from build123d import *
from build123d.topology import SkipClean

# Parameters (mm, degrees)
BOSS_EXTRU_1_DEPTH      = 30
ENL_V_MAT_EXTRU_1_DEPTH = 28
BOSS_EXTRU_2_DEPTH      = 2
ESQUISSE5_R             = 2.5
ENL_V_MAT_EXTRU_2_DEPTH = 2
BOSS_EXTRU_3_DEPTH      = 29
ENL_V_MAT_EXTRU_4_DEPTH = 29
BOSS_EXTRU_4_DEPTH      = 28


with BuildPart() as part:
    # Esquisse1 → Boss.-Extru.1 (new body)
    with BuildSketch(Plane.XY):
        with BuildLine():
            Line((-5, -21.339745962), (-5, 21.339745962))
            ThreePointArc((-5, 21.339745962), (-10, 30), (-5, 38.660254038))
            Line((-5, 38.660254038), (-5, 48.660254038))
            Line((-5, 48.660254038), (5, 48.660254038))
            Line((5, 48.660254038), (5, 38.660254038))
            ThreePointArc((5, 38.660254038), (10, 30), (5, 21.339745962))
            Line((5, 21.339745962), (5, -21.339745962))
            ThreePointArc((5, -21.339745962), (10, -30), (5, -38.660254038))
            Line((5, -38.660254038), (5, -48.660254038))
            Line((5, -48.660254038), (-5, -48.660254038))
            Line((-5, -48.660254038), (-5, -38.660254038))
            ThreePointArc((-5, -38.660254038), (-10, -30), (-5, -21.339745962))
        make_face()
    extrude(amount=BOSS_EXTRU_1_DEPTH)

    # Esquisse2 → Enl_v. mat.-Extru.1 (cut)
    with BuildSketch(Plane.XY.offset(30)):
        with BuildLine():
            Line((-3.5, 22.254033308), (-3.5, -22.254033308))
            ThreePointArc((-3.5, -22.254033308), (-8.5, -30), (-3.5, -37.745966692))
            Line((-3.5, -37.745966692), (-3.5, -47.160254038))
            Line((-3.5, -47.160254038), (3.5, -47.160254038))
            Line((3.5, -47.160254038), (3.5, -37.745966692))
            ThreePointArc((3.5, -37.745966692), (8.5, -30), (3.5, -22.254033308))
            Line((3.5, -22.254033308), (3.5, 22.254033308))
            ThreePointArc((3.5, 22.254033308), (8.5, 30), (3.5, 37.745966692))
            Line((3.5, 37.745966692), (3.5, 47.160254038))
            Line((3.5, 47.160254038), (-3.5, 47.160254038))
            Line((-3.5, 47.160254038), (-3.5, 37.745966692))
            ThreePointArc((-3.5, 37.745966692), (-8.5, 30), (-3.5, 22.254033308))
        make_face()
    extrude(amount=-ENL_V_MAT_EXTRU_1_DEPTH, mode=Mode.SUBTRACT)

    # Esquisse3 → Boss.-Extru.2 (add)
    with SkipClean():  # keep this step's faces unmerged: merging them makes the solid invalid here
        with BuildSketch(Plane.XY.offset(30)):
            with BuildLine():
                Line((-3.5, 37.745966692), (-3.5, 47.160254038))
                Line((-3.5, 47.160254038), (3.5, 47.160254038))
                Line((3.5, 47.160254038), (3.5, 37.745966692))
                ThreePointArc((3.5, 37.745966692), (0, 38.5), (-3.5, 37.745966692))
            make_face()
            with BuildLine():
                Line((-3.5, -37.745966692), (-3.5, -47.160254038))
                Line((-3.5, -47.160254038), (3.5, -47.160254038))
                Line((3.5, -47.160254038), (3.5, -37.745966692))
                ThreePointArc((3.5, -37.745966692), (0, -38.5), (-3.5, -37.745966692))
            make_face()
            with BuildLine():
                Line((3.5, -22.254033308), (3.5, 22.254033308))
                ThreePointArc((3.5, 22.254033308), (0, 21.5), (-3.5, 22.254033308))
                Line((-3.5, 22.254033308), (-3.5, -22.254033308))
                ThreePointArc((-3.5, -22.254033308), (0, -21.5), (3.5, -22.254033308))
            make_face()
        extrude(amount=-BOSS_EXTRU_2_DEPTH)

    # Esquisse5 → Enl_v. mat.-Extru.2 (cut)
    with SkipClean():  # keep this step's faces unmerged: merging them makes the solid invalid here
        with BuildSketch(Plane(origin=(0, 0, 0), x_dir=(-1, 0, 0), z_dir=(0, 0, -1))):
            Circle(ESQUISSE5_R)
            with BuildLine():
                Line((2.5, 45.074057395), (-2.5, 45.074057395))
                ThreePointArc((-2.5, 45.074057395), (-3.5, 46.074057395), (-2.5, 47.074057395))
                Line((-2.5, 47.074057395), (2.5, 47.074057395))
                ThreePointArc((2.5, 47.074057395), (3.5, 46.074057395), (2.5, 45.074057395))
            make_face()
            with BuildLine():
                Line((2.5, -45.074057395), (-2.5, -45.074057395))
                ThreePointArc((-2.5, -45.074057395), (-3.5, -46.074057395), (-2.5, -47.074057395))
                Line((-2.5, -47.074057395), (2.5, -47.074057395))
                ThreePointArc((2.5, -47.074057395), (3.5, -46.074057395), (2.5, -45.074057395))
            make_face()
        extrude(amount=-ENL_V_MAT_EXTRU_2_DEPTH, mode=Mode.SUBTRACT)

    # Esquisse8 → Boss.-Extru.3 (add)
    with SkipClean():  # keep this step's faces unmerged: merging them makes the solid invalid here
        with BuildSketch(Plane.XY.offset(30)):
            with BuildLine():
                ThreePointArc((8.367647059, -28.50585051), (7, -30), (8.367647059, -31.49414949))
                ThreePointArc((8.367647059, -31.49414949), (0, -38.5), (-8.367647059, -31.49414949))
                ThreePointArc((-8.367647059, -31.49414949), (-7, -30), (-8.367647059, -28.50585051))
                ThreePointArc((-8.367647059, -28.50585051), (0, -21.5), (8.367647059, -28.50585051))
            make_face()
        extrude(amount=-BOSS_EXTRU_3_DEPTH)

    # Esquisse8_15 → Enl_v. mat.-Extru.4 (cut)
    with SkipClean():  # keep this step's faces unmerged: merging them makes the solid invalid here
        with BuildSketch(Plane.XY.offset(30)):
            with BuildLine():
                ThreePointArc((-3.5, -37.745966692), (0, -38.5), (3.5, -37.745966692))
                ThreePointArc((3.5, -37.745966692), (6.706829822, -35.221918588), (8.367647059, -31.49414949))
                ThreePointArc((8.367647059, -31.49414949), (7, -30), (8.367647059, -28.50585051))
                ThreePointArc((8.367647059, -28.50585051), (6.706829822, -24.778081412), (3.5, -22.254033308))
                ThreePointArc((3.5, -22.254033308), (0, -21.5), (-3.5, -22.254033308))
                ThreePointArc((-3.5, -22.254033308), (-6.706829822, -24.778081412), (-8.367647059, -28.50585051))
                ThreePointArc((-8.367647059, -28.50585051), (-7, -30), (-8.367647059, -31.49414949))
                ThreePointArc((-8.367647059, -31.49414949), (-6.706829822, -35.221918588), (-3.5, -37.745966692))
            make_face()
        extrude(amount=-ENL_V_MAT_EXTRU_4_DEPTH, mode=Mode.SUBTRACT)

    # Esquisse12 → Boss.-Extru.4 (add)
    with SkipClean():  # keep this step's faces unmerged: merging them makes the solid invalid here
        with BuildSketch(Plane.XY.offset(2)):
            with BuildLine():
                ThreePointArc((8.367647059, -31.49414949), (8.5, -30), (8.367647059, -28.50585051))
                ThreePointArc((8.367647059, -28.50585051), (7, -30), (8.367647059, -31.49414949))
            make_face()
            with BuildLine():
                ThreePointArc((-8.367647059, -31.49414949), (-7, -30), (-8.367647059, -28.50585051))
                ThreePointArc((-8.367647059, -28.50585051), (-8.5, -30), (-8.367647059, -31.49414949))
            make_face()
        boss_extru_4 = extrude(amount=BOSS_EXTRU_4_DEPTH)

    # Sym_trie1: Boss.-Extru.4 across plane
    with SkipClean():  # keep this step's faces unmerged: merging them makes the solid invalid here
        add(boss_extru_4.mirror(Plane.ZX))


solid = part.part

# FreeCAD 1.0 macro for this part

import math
import FreeCAD as App
import Part
import Sketcher
Q = App.Units.Quantity

doc = App.newDocument("Part")
body = doc.addObject("PartDesign::Body", "Body")

sketch1 = body.newObject("Sketcher::SketchObject", "Sketch")
sketch1.AttachmentSupport = (doc.getObject("XY_Plane"), [""])
sketch1.MapMode = "FlatFace"
sketch1.addGeometry(Part.LineSegment(App.Vector(-5, 21, 0), App.Vector(-5, -21, 0)), False)
sketch1.addGeometry(Part.ArcOfCircle(Part.Circle(App.Vector(0, -30, 0), App.Vector(0, 0, 1), 10), math.radians(120), math.radians(240)), False)
sketch1.addGeometry(Part.LineSegment(App.Vector(-5, -39, 0), App.Vector(-5, -49, 0)), False)
sketch1.addGeometry(Part.LineSegment(App.Vector(-5, -49, 0), App.Vector(5, -49, 0)), False)
sketch1.addGeometry(Part.LineSegment(App.Vector(5, -49, 0), App.Vector(5, -39, 0)), False)
sketch1.addGeometry(Part.ArcOfCircle(Part.Circle(App.Vector(0, -30, 0), App.Vector(0, 0, 1), 10), math.radians(-60), math.radians(60)), False)
sketch1.addGeometry(Part.LineSegment(App.Vector(5, -21, 0), App.Vector(5, 21, 0)), False)
sketch1.addGeometry(Part.ArcOfCircle(Part.Circle(App.Vector(0, 30, 0), App.Vector(0, 0, 1), 10), math.radians(-60), math.radians(60)), False)
sketch1.addGeometry(Part.LineSegment(App.Vector(5, 39, 0), App.Vector(5, 49, 0)), False)
sketch1.addGeometry(Part.LineSegment(App.Vector(5, 49, 0), App.Vector(-5, 49, 0)), False)
sketch1.addGeometry(Part.LineSegment(App.Vector(-5, 49, 0), App.Vector(-5, 39, 0)), False)
sketch1.addGeometry(Part.ArcOfCircle(Part.Circle(App.Vector(0, 30, 0), App.Vector(0, 0, 1), 10), math.radians(120), math.radians(240)), False)
sketch1.addConstraint(Sketcher.Constraint("Coincident", 0, 2, 1, 1))
sketch1.addConstraint(Sketcher.Constraint("Coincident", 1, 2, 2, 1))
sketch1.addConstraint(Sketcher.Constraint("Coincident", 2, 2, 3, 1))
sketch1.addConstraint(Sketcher.Constraint("Coincident", 3, 2, 4, 1))
sketch1.addConstraint(Sketcher.Constraint("Coincident", 4, 2, 5, 1))
sketch1.addConstraint(Sketcher.Constraint("Coincident", 5, 2, 6, 1))
sketch1.addConstraint(Sketcher.Constraint("Coincident", 6, 2, 7, 1))
sketch1.addConstraint(Sketcher.Constraint("Coincident", 7, 2, 8, 1))
sketch1.addConstraint(Sketcher.Constraint("Coincident", 8, 2, 9, 1))
sketch1.addConstraint(Sketcher.Constraint("Coincident", 9, 2, 10, 1))
sketch1.addConstraint(Sketcher.Constraint("Coincident", 10, 2, 11, 1))
sketch1.addConstraint(Sketcher.Constraint("Coincident", 11, 2, 0, 1))
sketch1.addConstraint(Sketcher.Constraint("Vertical", 0))
sketch1.addConstraint(Sketcher.Constraint("Vertical", 2))
sketch1.addConstraint(Sketcher.Constraint("Horizontal", 3))
sketch1.addConstraint(Sketcher.Constraint("Vertical", 4))
sketch1.addConstraint(Sketcher.Constraint("Vertical", 6))
sketch1.addConstraint(Sketcher.Constraint("Vertical", 8))
sketch1.addConstraint(Sketcher.Constraint("Horizontal", 9))
sketch1.addConstraint(Sketcher.Constraint("Vertical", 10))
sketch1.addConstraint(Sketcher.Constraint("Coincident", 5, 3, 1, 3))
sketch1.addConstraint(Sketcher.Constraint("Coincident", 11, 3, 7, 3))
sketch1.addConstraint(Sketcher.Constraint("Equal", 1, 5))
sketch1.addConstraint(Sketcher.Constraint("Equal", 5, 7))
sketch1.addConstraint(Sketcher.Constraint("Equal", 7, 11))
sketch1.addConstraint(Sketcher.Constraint("Symmetric", 1, 3, 7, 3, -1, 1))
sketch1.addConstraint(Sketcher.Constraint("Symmetric", 2, 2, 8, 2, -1, 1))
sketch1.addConstraint(Sketcher.Constraint("Symmetric", 1, 2, 4, 2, -2))
sketch1.addConstraint(Sketcher.Constraint("Horizontal", 0, 2, 5, 2))
sketch1.addConstraint(Sketcher.Constraint("Horizontal", 7, 2, 10, 2))
sketch1.addConstraint(Sketcher.Constraint("Vertical", 0, 2, 1, 2))
sketch1.addConstraint(Sketcher.Constraint("Equal", 9, 2))
sketch1.addConstraint(Sketcher.Constraint("Radius", 1, Q("10 mm")))
sketch1.addConstraint(Sketcher.Constraint("DistanceX", 3, 1, 3, 2, Q("10 mm")))
sketch1.addConstraint(Sketcher.Constraint("DistanceY", 1, 3, -1, 1, Q("30 mm")))
pad1 = body.newObject("PartDesign::Pad", "Pad")
pad1.Profile = sketch1
pad1.Length = 30

sketch2 = body.newObject("Sketcher::SketchObject", "Sketch001")
sketch2.AttachmentSupport = (doc.getObject("XY_Plane"), [""])
sketch2.MapMode = "FlatFace"
sketch2.AttachmentOffset = App.Placement(App.Vector(0, 0, 30), App.Rotation())
sketch2.addGeometry(Part.LineSegment(App.Vector(-4, 22, 0), App.Vector(-4, -22, 0)), False)
sketch2.addGeometry(Part.ArcOfCircle(Part.Circle(App.Vector(0, -30, 0), App.Vector(0, 0, 1), 8), math.radians(114), math.radians(246)), False)
sketch2.addGeometry(Part.LineSegment(App.Vector(-4, -38, 0), App.Vector(-4, -47, 0)), False)
sketch2.addGeometry(Part.LineSegment(App.Vector(-4, -47, 0), App.Vector(4, -47, 0)), False)
sketch2.addGeometry(Part.LineSegment(App.Vector(4, -47, 0), App.Vector(4, -38, 0)), False)
sketch2.addGeometry(Part.ArcOfCircle(Part.Circle(App.Vector(0, -30, 0), App.Vector(0, 0, 1), 8), math.radians(-66), math.radians(66)), False)
sketch2.addGeometry(Part.LineSegment(App.Vector(4, -22, 0), App.Vector(4, 22, 0)), False)
sketch2.addGeometry(Part.ArcOfCircle(Part.Circle(App.Vector(0, 30, 0), App.Vector(0, 0, 1), 8), math.radians(-66), math.radians(66)), False)
sketch2.addGeometry(Part.LineSegment(App.Vector(4, 38, 0), App.Vector(4, 47, 0)), False)
sketch2.addGeometry(Part.LineSegment(App.Vector(4, 47, 0), App.Vector(-4, 47, 0)), False)
sketch2.addGeometry(Part.LineSegment(App.Vector(-4, 47, 0), App.Vector(-4, 38, 0)), False)
sketch2.addGeometry(Part.ArcOfCircle(Part.Circle(App.Vector(0, 30, 0), App.Vector(0, 0, 1), 8), math.radians(114), math.radians(246)), False)
sketch2.addConstraint(Sketcher.Constraint("Coincident", 0, 2, 1, 1))
sketch2.addConstraint(Sketcher.Constraint("Coincident", 1, 2, 2, 1))
sketch2.addConstraint(Sketcher.Constraint("Coincident", 2, 2, 3, 1))
sketch2.addConstraint(Sketcher.Constraint("Coincident", 3, 2, 4, 1))
sketch2.addConstraint(Sketcher.Constraint("Coincident", 4, 2, 5, 1))
sketch2.addConstraint(Sketcher.Constraint("Coincident", 5, 2, 6, 1))
sketch2.addConstraint(Sketcher.Constraint("Coincident", 6, 2, 7, 1))
sketch2.addConstraint(Sketcher.Constraint("Coincident", 7, 2, 8, 1))
sketch2.addConstraint(Sketcher.Constraint("Coincident", 8, 2, 9, 1))
sketch2.addConstraint(Sketcher.Constraint("Coincident", 9, 2, 10, 1))
sketch2.addConstraint(Sketcher.Constraint("Coincident", 10, 2, 11, 1))
sketch2.addConstraint(Sketcher.Constraint("Coincident", 11, 2, 0, 1))
sketch2.addConstraint(Sketcher.Constraint("Vertical", 0))
sketch2.addConstraint(Sketcher.Constraint("Vertical", 2))
sketch2.addConstraint(Sketcher.Constraint("Horizontal", 3))
sketch2.addConstraint(Sketcher.Constraint("Vertical", 4))
sketch2.addConstraint(Sketcher.Constraint("Vertical", 6))
sketch2.addConstraint(Sketcher.Constraint("Vertical", 8))
sketch2.addConstraint(Sketcher.Constraint("Horizontal", 9))
sketch2.addConstraint(Sketcher.Constraint("Vertical", 10))
sketch2.addConstraint(Sketcher.Constraint("Coincident", 5, 3, 1, 3))
sketch2.addConstraint(Sketcher.Constraint("Coincident", 11, 3, 7, 3))
sketch2.addConstraint(Sketcher.Constraint("Equal", 1, 5))
sketch2.addConstraint(Sketcher.Constraint("Equal", 5, 7))
sketch2.addConstraint(Sketcher.Constraint("Equal", 7, 11))
sketch2.addConstraint(Sketcher.Constraint("Symmetric", 1, 3, 7, 3, -1, 1))
sketch2.addConstraint(Sketcher.Constraint("Symmetric", 2, 2, 8, 2, -1, 1))
sketch2.addConstraint(Sketcher.Constraint("Symmetric", 1, 2, 4, 2, -2))
sketch2.addConstraint(Sketcher.Constraint("Horizontal", 0, 2, 5, 2))
sketch2.addConstraint(Sketcher.Constraint("Horizontal", 7, 2, 10, 2))
sketch2.addConstraint(Sketcher.Constraint("Vertical", 0, 2, 1, 2))
sketch2.addConstraint(Sketcher.Constraint("Radius", 1, Q("8.5 mm")))
sketch2.addConstraint(Sketcher.Constraint("DistanceX", 3, 1, 3, 2, Q("7 mm")))
sketch2.addConstraint(Sketcher.Constraint("DistanceY", 1, 3, -1, 1, Q("30 mm")))
sketch2.addConstraint(Sketcher.Constraint("DistanceY", 2, 2, 2, 1, Q("9.414287 mm")))
pocket1 = body.newObject("PartDesign::Pocket", "Pocket")
pocket1.Profile = sketch2
pocket1.Length = 28

sketch3 = body.newObject("Sketcher::SketchObject", "Sketch002")
sketch3.AttachmentSupport = (doc.getObject("XY_Plane"), [""])
sketch3.MapMode = "FlatFace"
sketch3.AttachmentOffset = App.Placement(App.Vector(0, 0, 30), App.Rotation())
sketch3.addGeometry(Part.LineSegment(App.Vector(-4, 47, 0), App.Vector(-4, 38, 0)), False)
sketch3.addGeometry(Part.ArcOfCircle(Part.Circle(App.Vector(0, 30, 0), App.Vector(0, 0, 1), 8), math.radians(66), math.radians(114)), False)
sketch3.addGeometry(Part.LineSegment(App.Vector(4, 38, 0), App.Vector(4, 47, 0)), False)
sketch3.addGeometry(Part.LineSegment(App.Vector(4, 47, 0), App.Vector(-4, 47, 0)), False)
sketch3.addGeometry(Part.LineSegment(App.Vector(-4, -38, 0), App.Vector(-4, -47, 0)), False)
sketch3.addGeometry(Part.LineSegment(App.Vector(-4, -47, 0), App.Vector(4, -47, 0)), False)
sketch3.addGeometry(Part.LineSegment(App.Vector(4, -47, 0), App.Vector(4, -38, 0)), False)
sketch3.addGeometry(Part.ArcOfCircle(Part.Circle(App.Vector(0, -30, 0), App.Vector(0, 0, 1), 8), math.radians(-114), math.radians(-66)), False)
sketch3.addGeometry(Part.LineSegment(App.Vector(4, -22, 0), App.Vector(4, 22, 0)), False)
sketch3.addGeometry(Part.ArcOfCircle(Part.Circle(App.Vector(0, 30, 0), App.Vector(0, 0, 1), 8), math.radians(-114), math.radians(-66)), False)
sketch3.addGeometry(Part.LineSegment(App.Vector(-4, 22, 0), App.Vector(-4, -22, 0)), False)
sketch3.addGeometry(Part.ArcOfCircle(Part.Circle(App.Vector(0, -30, 0), App.Vector(0, 0, 1), 8), math.radians(66), math.radians(114)), False)
sketch3.addConstraint(Sketcher.Constraint("Coincident", 0, 2, 1, 2))
sketch3.addConstraint(Sketcher.Constraint("Coincident", 1, 1, 2, 1))
sketch3.addConstraint(Sketcher.Constraint("Coincident", 2, 2, 3, 1))
sketch3.addConstraint(Sketcher.Constraint("Coincident", 3, 2, 0, 1))
sketch3.addConstraint(Sketcher.Constraint("Coincident", 4, 2, 5, 1))
sketch3.addConstraint(Sketcher.Constraint("Coincident", 5, 2, 6, 1))
sketch3.addConstraint(Sketcher.Constraint("Coincident", 6, 2, 7, 2))
sketch3.addConstraint(Sketcher.Constraint("Coincident", 7, 1, 4, 1))
sketch3.addConstraint(Sketcher.Constraint("Coincident", 8, 2, 9, 2))
sketch3.addConstraint(Sketcher.Constraint("Coincident", 9, 1, 10, 1))
sketch3.addConstraint(Sketcher.Constraint("Coincident", 10, 2, 11, 2))
sketch3.addConstraint(Sketcher.Constraint("Coincident", 11, 1, 8, 1))
sketch3.addConstraint(Sketcher.Constraint("Vertical", 0))
sketch3.addConstraint(Sketcher.Constraint("Vertical", 2))
sketch3.addConstraint(Sketcher.Constraint("Horizontal", 3))
sketch3.addConstraint(Sketcher.Constraint("Vertical", 4))
sketch3.addConstraint(Sketcher.Constraint("Horizontal", 5))
sketch3.addConstraint(Sketcher.Constraint("Vertical", 6))
sketch3.addConstraint(Sketcher.Constraint("Vertical", 8))
sketch3.addConstraint(Sketcher.Constraint("Vertical", 10))
sketch3.addConstraint(Sketcher.Constraint("Coincident", 9, 3, 1, 3))
sketch3.addConstraint(Sketcher.Constraint("Coincident", 11, 3, 7, 3))
sketch3.addConstraint(Sketcher.Constraint("Equal", 1, 7))
sketch3.addConstraint(Sketcher.Constraint("Equal", 7, 9))
sketch3.addConstraint(Sketcher.Constraint("Equal", 9, 11))
sketch3.addConstraint(Sketcher.Constraint("Symmetric", 1, 3, 7, 3, -1, 1))
sketch3.addConstraint(Sketcher.Constraint("Symmetric", 2, 2, 4, 2, -1, 1))
sketch3.addConstraint(Sketcher.Constraint("Symmetric", 0, 2, 1, 1, -2))
sketch3.addConstraint(Sketcher.Constraint("Horizontal", 6, 2, 7, 1))
sketch3.addConstraint(Sketcher.Constraint("Horizontal", 8, 2, 9, 1))
sketch3.addConstraint(Sketcher.Constraint("Vertical", 6, 2, 8, 2))
sketch3.addConstraint(Sketcher.Constraint("Radius", 1, Q("8.5 mm")))
sketch3.addConstraint(Sketcher.Constraint("DistanceX", 3, 2, 3, 1, Q("7 mm")))
sketch3.addConstraint(Sketcher.Constraint("DistanceY", -1, 1, 1, 3, Q("30 mm")))
sketch3.addConstraint(Sketcher.Constraint("DistanceY", 0, 2, 0, 1, Q("9.414287 mm")))
pad2 = body.newObject("PartDesign::Pad", "Pad001")
pad2.Profile = sketch3
pad2.Length = 2
pad2.Reversed = True

sketch4 = body.newObject("Sketcher::SketchObject", "Sketch003")
sketch4.AttachmentSupport = (doc.getObject("XY_Plane"), [""])
sketch4.MapMode = "FlatFace"
sketch4.addGeometry(Part.Circle(App.Vector(0, 0, 0), App.Vector(0, 0, 1), 2.5), False)
sketch4.addGeometry(Part.LineSegment(App.Vector(2.5, 45.1, 0), App.Vector(-2.5, 45.1, 0)), False)
sketch4.addGeometry(Part.ArcOfCircle(Part.Circle(App.Vector(-2.5, 46.1, 0), App.Vector(0, 0, 1), 1), math.radians(90), math.radians(270)), False)
sketch4.addGeometry(Part.LineSegment(App.Vector(-2.5, 47.1, 0), App.Vector(2.5, 47.1, 0)), False)
sketch4.addGeometry(Part.ArcOfCircle(Part.Circle(App.Vector(2.5, 46.1, 0), App.Vector(0, 0, 1), 1), math.radians(-90), math.radians(90)), False)
sketch4.addGeometry(Part.LineSegment(App.Vector(-2.5, -45.1, 0), App.Vector(2.5, -45.1, 0)), False)
sketch4.addGeometry(Part.ArcOfCircle(Part.Circle(App.Vector(2.5, -46.1, 0), App.Vector(0, 0, 1), 1), math.radians(-90), math.radians(90)), False)
sketch4.addGeometry(Part.LineSegment(App.Vector(2.5, -47.1, 0), App.Vector(-2.5, -47.1, 0)), False)
sketch4.addGeometry(Part.ArcOfCircle(Part.Circle(App.Vector(-2.5, -46.1, 0), App.Vector(0, 0, 1), 1), math.radians(90), math.radians(270)), False)
sketch4.addConstraint(Sketcher.Constraint("Tangent", 1, 2, 2, 2))
sketch4.addConstraint(Sketcher.Constraint("Tangent", 2, 1, 3, 1))
sketch4.addConstraint(Sketcher.Constraint("Tangent", 3, 2, 4, 2))
sketch4.addConstraint(Sketcher.Constraint("Tangent", 4, 1, 1, 1))
sketch4.addConstraint(Sketcher.Constraint("Tangent", 5, 2, 6, 2))
sketch4.addConstraint(Sketcher.Constraint("Tangent", 6, 1, 7, 1))
sketch4.addConstraint(Sketcher.Constraint("Tangent", 7, 2, 8, 2))
sketch4.addConstraint(Sketcher.Constraint("Tangent", 8, 1, 5, 1))
sketch4.addConstraint(Sketcher.Constraint("Horizontal", 1))
sketch4.addConstraint(Sketcher.Constraint("Horizontal", 3))
sketch4.addConstraint(Sketcher.Constraint("Horizontal", 5))
sketch4.addConstraint(Sketcher.Constraint("Horizontal", 7))
sketch4.addConstraint(Sketcher.Constraint("Coincident", 0, 3, -1, 1))
sketch4.addConstraint(Sketcher.Constraint("Equal", 4, 6))
sketch4.addConstraint(Sketcher.Constraint("Symmetric", 2, 3, 6, 3, -1, 1))
sketch4.addConstraint(Sketcher.Constraint("Vertical", 4, 3, 6, 3))
sketch4.addConstraint(Sketcher.Constraint("Vertical", 2, 3, 8, 3))
sketch4.addConstraint(Sketcher.Constraint("Diameter", 0, Q("5 mm")))
sketch4.addConstraint(Sketcher.Constraint("Radius", 2, Q("1 mm")))
sketch4.addConstraint(Sketcher.Constraint("DistanceX", 1, 2, 1, 1, Q("5 mm")))
sketch4.addConstraint(Sketcher.Constraint("DistanceY", -1, 1, 2, 3, Q("46.074057 mm")))
pocket2 = body.newObject("PartDesign::Pocket", "Pocket001")
pocket2.Profile = sketch4
pocket2.Length = 2
pocket2.Reversed = True

sketch5 = body.newObject("Sketcher::SketchObject", "Sketch004")
sketch5.AttachmentSupport = (doc.getObject("XY_Plane"), [""])
sketch5.MapMode = "FlatFace"
sketch5.AttachmentOffset = App.Placement(App.Vector(0, 0, 30), App.Rotation())
sketch5.addGeometry(Part.ArcOfCircle(Part.Circle(App.Vector(8.5, -30, 0), App.Vector(0, 0, 1), 1.5), math.radians(95), math.radians(265)), False)
sketch5.addGeometry(Part.ArcOfCircle(Part.Circle(App.Vector(0, -30, 0), App.Vector(0, 0, 1), 8.5), math.radians(10), math.radians(170)), False)
sketch5.addGeometry(Part.ArcOfCircle(Part.Circle(App.Vector(-8.5, -30, 0), App.Vector(0, 0, 1), 1.5), math.radians(-85), math.radians(85)), False)
sketch5.addGeometry(Part.ArcOfCircle(Part.Circle(App.Vector(0, -30, 0), App.Vector(0, 0, 1), 8.5), math.radians(-170), math.radians(-10)), False)
sketch5.addConstraint(Sketcher.Constraint("Coincident", 0, 1, 1, 1))
sketch5.addConstraint(Sketcher.Constraint("Coincident", 1, 2, 2, 2))
sketch5.addConstraint(Sketcher.Constraint("Coincident", 2, 1, 3, 1))
sketch5.addConstraint(Sketcher.Constraint("Coincident", 3, 2, 0, 2))
sketch5.addConstraint(Sketcher.Constraint("Coincident", 3, 3, 1, 3))
sketch5.addConstraint(Sketcher.Constraint("Equal", 0, 2))
sketch5.addConstraint(Sketcher.Constraint("Equal", 1, 3))
sketch5.addConstraint(Sketcher.Constraint("Symmetric", 0, 3, 2, 3, -2))
sketch5.addConstraint(Sketcher.Constraint("PointOnObject", 1, 3, -2))
sketch5.addConstraint(Sketcher.Constraint("Horizontal", 0, 3, 1, 3))
sketch5.addConstraint(Sketcher.Constraint("Radius", 0, Q("1.5 mm")))
sketch5.addConstraint(Sketcher.Constraint("Radius", 1, Q("8.5 mm")))
sketch5.addConstraint(Sketcher.Constraint("DistanceY", 0, 3, -1, 1, Q("30 mm")))
sketch5.addConstraint(Sketcher.Constraint("DistanceX", 2, 3, 0, 3, Q("17 mm")))
pad3 = body.newObject("PartDesign::Pad", "Pad002")
pad3.Profile = sketch5
pad3.Length = 29
pad3.Reversed = True

sketch6 = body.newObject("Sketcher::SketchObject", "Sketch005")
sketch6.AttachmentSupport = (doc.getObject("XY_Plane"), [""])
sketch6.MapMode = "FlatFace"
sketch6.AttachmentOffset = App.Placement(App.Vector(0, 0, 30), App.Rotation())
sketch6.addGeometry(Part.ArcOfCircle(Part.Circle(App.Vector(0, -30, 0), App.Vector(0, 0, 1), 8.5), math.radians(-114), math.radians(-66)), False)
sketch6.addGeometry(Part.ArcOfCircle(Part.Circle(App.Vector(0, -30, 0), App.Vector(0, 0, 1), 8.5), math.radians(-66), math.radians(-10)), False)
sketch6.addGeometry(Part.ArcOfCircle(Part.Circle(App.Vector(8.5, -30, 0), App.Vector(0, 0, 1), 1.5), math.radians(95), math.radians(265)), False)
sketch6.addGeometry(Part.ArcOfCircle(Part.Circle(App.Vector(0, -30, 0), App.Vector(0, 0, 1), 8.5), math.radians(10), math.radians(66)), False)
sketch6.addGeometry(Part.ArcOfCircle(Part.Circle(App.Vector(0, -30, 0), App.Vector(0, 0, 1), 8.5), math.radians(66), math.radians(114)), False)
sketch6.addGeometry(Part.ArcOfCircle(Part.Circle(App.Vector(0, -30, 0), App.Vector(0, 0, 1), 8.5), math.radians(114), math.radians(170)), False)
sketch6.addGeometry(Part.ArcOfCircle(Part.Circle(App.Vector(-8.5, -30, 0), App.Vector(0, 0, 1), 1.5), math.radians(-85), math.radians(85)), False)
sketch6.addGeometry(Part.ArcOfCircle(Part.Circle(App.Vector(0, -30, 0), App.Vector(0, 0, 1), 8.5), math.radians(-170), math.radians(-114)), False)
sketch6.addConstraint(Sketcher.Constraint("Tangent", 0, 2, 1, 1))
sketch6.addConstraint(Sketcher.Constraint("Coincident", 1, 2, 2, 2))
sketch6.addConstraint(Sketcher.Constraint("Coincident", 2, 1, 3, 1))
sketch6.addConstraint(Sketcher.Constraint("Tangent", 3, 2, 4, 1))
sketch6.addConstraint(Sketcher.Constraint("Tangent", 4, 2, 5, 1))
sketch6.addConstraint(Sketcher.Constraint("Coincident", 5, 2, 6, 2))
sketch6.addConstraint(Sketcher.Constraint("Coincident", 6, 1, 7, 1))
sketch6.addConstraint(Sketcher.Constraint("Tangent", 7, 2, 0, 1))
sketch6.addConstraint(Sketcher.Constraint("Coincident", 3, 3, 0, 3))
sketch6.addConstraint(Sketcher.Constraint("Coincident", 5, 3, 0, 3))
sketch6.addConstraint(Sketcher.Constraint("Equal", 0, 1))
sketch6.addConstraint(Sketcher.Constraint("Equal", 1, 3))
sketch6.addConstraint(Sketcher.Constraint("Equal", 2, 6))
sketch6.addConstraint(Sketcher.Constraint("Equal", 5, 7))
sketch6.addConstraint(Sketcher.Constraint("Symmetric", 2, 3, 6, 3, -2))
sketch6.addConstraint(Sketcher.Constraint("Symmetric", 3, 2, 4, 2, -2))
sketch6.addConstraint(Sketcher.Constraint("Horizontal", 1, 3, 2, 3))
sketch6.addConstraint(Sketcher.Constraint("Horizontal", 0, 2, 7, 2))
sketch6.addConstraint(Sketcher.Constraint("Vertical", 0, 2, 3, 2))
sketch6.addConstraint(Sketcher.Constraint("Radius", 0, Q("8.5 mm")))
sketch6.addConstraint(Sketcher.Constraint("Radius", 2, Q("1.5 mm")))
sketch6.addConstraint(Sketcher.Constraint("DistanceY", 0, 3, -1, 1, Q("30 mm")))
sketch6.addConstraint(Sketcher.Constraint("DistanceX", 4, 2, 3, 2, Q("7 mm")))
sketch6.addConstraint(Sketcher.Constraint("DistanceX", -1, 1, 2, 3, Q("8.5 mm")))
pocket3 = body.newObject("PartDesign::Pocket", "Pocket002")
pocket3.Profile = sketch6
pocket3.Length = 29

sketch7 = body.newObject("Sketcher::SketchObject", "Sketch006")
sketch7.AttachmentSupport = (doc.getObject("XY_Plane"), [""])
sketch7.MapMode = "FlatFace"
sketch7.AttachmentOffset = App.Placement(App.Vector(0, 0, 2), App.Rotation())
sketch7.addGeometry(Part.ArcOfCircle(Part.Circle(App.Vector(0, -30, 0), App.Vector(0, 0, 1), 8.5), math.radians(-10), math.radians(10)), False)
sketch7.addGeometry(Part.ArcOfCircle(Part.Circle(App.Vector(8.5, -30, 0), App.Vector(0, 0, 1), 1.5), math.radians(95), math.radians(265)), False)
sketch7.addGeometry(Part.ArcOfCircle(Part.Circle(App.Vector(-8.5, -30, 0), App.Vector(0, 0, 1), 1.5), math.radians(-85), math.radians(85)), False)
sketch7.addGeometry(Part.ArcOfCircle(Part.Circle(App.Vector(0, -30, 0), App.Vector(0, 0, 1), 8.5), math.radians(170), math.radians(190)), False)
sketch7.addConstraint(Sketcher.Constraint("Coincident", 0, 1, 1, 2))
sketch7.addConstraint(Sketcher.Constraint("Coincident", 1, 1, 0, 2))
sketch7.addConstraint(Sketcher.Constraint("Coincident", 2, 1, 3, 2))
sketch7.addConstraint(Sketcher.Constraint("Coincident", 3, 1, 2, 2))
sketch7.addConstraint(Sketcher.Constraint("Coincident", 3, 3, 0, 3))
sketch7.addConstraint(Sketcher.Constraint("Equal", 1, 2))
sketch7.addConstraint(Sketcher.Constraint("Equal", 0, 3))
sketch7.addConstraint(Sketcher.Constraint("Symmetric", 1, 3, 2, 3, -2))
sketch7.addConstraint(Sketcher.Constraint("PointOnObject", 0, 3, -2))
sketch7.addConstraint(Sketcher.Constraint("Horizontal", 0, 3, 1, 3))
sketch7.addConstraint(Sketcher.Constraint("Radius", 0, Q("8.5 mm")))
sketch7.addConstraint(Sketcher.Constraint("Radius", 1, Q("1.5 mm")))
sketch7.addConstraint(Sketcher.Constraint("DistanceY", 0, 3, -1, 1, Q("30 mm")))
sketch7.addConstraint(Sketcher.Constraint("DistanceX", 2, 3, 1, 3, Q("17 mm")))
pad4 = body.newObject("PartDesign::Pad", "Pad003")
pad4.Profile = sketch7
pad4.Length = 28
doc.recompute()

mirrored = body.newObject("PartDesign::Mirrored", "Mirrored")
mirrored.Originals = [pad4]
mirrored.MirrorPlane = (doc.getObject("XZ_Plane"), [""])
body.Tip = mirrored

doc.recompute()
